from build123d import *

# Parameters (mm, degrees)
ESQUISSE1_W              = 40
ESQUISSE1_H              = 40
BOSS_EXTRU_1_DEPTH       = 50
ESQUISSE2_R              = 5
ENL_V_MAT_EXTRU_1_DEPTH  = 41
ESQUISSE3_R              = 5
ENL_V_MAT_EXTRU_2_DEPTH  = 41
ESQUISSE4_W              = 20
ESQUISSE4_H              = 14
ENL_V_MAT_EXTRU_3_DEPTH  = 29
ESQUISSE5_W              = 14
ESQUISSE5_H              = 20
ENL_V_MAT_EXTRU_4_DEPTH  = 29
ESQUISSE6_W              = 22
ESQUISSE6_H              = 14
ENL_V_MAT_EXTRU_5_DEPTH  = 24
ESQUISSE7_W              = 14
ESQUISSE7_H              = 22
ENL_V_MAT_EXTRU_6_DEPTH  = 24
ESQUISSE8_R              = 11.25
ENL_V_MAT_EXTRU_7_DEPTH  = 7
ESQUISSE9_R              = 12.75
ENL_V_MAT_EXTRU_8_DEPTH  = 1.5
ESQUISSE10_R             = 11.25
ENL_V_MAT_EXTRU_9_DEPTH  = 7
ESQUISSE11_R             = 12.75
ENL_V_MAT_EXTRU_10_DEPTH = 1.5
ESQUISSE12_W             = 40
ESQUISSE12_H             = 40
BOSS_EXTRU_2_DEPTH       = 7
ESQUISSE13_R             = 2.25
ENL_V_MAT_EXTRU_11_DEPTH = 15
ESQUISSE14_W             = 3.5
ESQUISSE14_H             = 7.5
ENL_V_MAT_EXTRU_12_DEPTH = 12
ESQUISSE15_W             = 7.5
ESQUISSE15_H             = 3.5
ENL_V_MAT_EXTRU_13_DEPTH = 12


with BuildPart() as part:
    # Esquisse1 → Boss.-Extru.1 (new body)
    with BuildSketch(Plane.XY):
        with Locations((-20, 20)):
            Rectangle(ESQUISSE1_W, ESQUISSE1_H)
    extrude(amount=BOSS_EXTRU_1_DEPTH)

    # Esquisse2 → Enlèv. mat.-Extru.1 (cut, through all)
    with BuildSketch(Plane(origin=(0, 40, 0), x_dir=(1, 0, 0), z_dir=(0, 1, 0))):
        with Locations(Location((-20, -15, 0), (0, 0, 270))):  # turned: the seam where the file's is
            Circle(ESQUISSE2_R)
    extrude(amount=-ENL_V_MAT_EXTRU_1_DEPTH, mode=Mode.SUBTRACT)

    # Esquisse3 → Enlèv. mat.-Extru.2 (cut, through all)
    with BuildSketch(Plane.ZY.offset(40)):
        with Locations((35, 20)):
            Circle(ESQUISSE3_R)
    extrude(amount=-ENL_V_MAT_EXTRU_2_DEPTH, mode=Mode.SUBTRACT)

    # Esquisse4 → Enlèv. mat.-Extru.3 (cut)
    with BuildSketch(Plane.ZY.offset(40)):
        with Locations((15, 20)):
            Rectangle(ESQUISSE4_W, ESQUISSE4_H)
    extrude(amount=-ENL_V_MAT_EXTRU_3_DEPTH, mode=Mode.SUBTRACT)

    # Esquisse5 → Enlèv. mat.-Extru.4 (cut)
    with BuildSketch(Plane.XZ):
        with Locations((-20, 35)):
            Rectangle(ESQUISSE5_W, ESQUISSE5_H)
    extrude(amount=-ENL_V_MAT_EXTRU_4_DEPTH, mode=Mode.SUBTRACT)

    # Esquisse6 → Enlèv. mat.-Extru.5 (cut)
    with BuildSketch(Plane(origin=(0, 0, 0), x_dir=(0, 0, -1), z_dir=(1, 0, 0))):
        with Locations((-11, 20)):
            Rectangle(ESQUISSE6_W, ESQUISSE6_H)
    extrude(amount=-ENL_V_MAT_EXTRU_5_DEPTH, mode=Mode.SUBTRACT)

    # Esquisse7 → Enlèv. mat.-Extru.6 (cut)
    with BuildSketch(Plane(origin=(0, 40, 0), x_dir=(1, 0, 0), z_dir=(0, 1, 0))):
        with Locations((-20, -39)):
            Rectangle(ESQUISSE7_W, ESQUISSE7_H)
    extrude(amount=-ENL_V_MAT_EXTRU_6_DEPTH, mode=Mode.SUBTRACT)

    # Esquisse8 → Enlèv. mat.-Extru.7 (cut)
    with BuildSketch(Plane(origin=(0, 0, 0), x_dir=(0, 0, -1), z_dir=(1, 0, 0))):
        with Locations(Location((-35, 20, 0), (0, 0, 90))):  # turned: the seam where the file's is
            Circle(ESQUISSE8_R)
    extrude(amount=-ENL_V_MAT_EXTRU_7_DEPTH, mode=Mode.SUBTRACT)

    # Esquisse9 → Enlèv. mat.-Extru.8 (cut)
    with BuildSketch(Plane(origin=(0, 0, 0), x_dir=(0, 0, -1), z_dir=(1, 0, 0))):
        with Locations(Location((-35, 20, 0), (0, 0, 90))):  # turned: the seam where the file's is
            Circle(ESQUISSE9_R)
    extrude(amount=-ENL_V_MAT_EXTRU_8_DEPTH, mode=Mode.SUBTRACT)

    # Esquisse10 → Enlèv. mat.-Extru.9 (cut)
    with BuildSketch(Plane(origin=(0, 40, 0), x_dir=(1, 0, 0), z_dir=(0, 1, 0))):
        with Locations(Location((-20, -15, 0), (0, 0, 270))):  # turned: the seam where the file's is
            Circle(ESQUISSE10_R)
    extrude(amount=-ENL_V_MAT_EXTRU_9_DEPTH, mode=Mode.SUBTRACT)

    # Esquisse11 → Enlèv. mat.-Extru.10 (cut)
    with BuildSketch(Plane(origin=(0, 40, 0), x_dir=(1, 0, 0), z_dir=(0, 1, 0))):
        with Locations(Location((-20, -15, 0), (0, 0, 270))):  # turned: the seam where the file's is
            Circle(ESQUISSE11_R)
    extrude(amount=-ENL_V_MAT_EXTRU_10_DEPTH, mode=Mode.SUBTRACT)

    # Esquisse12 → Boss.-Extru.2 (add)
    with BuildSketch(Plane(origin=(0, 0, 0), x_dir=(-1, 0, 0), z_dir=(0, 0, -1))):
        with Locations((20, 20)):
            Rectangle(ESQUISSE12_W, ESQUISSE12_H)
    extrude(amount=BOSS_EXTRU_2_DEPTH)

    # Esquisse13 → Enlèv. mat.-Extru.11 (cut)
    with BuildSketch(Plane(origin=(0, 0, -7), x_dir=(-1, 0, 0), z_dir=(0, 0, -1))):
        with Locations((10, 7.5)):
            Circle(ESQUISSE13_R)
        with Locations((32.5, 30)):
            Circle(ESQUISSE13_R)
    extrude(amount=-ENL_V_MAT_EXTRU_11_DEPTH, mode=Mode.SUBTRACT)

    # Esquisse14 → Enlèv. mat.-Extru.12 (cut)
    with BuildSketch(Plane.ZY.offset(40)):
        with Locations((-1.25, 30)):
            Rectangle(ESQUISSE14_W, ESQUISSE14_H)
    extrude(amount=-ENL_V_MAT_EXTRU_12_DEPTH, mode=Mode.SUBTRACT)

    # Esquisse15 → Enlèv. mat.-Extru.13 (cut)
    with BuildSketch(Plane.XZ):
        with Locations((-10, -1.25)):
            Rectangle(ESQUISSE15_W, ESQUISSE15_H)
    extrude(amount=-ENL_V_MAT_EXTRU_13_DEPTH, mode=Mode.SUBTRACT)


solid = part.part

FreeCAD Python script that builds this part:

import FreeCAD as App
import Part
import Sketcher

V = App.Vector

doc = App.newDocument("Part")
body = doc.addObject("PartDesign::Body", "Body")

sketch1 = doc.addObject("Sketcher::SketchObject", "Sketch")
body.addObject(sketch1)
sketch1.AttachmentSupport = (doc.XY_Plane, [""])
sketch1.MapMode = "FlatFace"
sketch1.addGeometry(Part.LineSegment(V(-40, 40, 0), V(-40, 0, 0)), False)
sketch1.addGeometry(Part.LineSegment(V(-40, 0, 0), V(0, 0, 0)), False)
sketch1.addGeometry(Part.LineSegment(V(0, 0, 0), V(0, 40, 0)), False)
sketch1.addGeometry(Part.LineSegment(V(0, 40, 0), V(-40, 40, 0)), False)
sketch1.addConstraint(Sketcher.Constraint("Coincident", 0, 2, 1, 1))
sketch1.addConstraint(Sketcher.Constraint("Coincident", 1, 2, 2, 1))
sketch1.addConstraint(Sketcher.Constraint("Coincident", 2, 2, 3, 1))
sketch1.addConstraint(Sketcher.Constraint("Coincident", 3, 2, 0, 1))
sketch1.addConstraint(Sketcher.Constraint("Vertical", 0))
sketch1.addConstraint(Sketcher.Constraint("Horizontal", 1))
sketch1.addConstraint(Sketcher.Constraint("Vertical", 2))
sketch1.addConstraint(Sketcher.Constraint("Horizontal", 3))
sketch1.addConstraint(Sketcher.Constraint("Coincident", 1, 2, -1, 1))
sketch1.addConstraint(Sketcher.Constraint("Equal", 3, 0))
sketch1.addConstraint(Sketcher.Constraint("DistanceX", 1, 1, 1, 2, 40.0))
pad1 = doc.addObject("PartDesign::Pad", "Pad")
body.addObject(pad1)
pad1.Profile = sketch1
pad1.Length = 50

sketch2 = doc.addObject("Sketcher::SketchObject", "Sketch001")
body.addObject(sketch2)
sketch2.AttachmentSupport = (doc.XZ_Plane, [""])
sketch2.MapMode = "FlatFace"
sketch2.AttachmentOffset = App.Placement(V(0, 0, -40), App.Rotation())
sketch2.addGeometry(Part.Circle(V(-20, 15, 0), V(0, 0, 1), 5), False)
sketch2.addConstraint(Sketcher.Constraint("Diameter", 0, 10.0))
sketch2.addConstraint(Sketcher.Constraint("DistanceX", 0, 3, -1, 1, 20.0))
sketch2.addConstraint(Sketcher.Constraint("DistanceY", -1, 1, 0, 3, 15.0))
pocket1 = doc.addObject("PartDesign::Pocket", "Pocket")
body.addObject(pocket1)
pocket1.Profile = sketch2
pocket1.Type = "ThroughAll"
pocket1.Reversed = True

sketch3 = doc.addObject("Sketcher::SketchObject", "Sketch002")
body.addObject(sketch3)
sketch3.AttachmentSupport = (doc.YZ_Plane, [""])
sketch3.MapMode = "FlatFace"
sketch3.AttachmentOffset = App.Placement(V(0, 0, -40), App.Rotation())
sketch3.addGeometry(Part.Circle(V(20, 35, 0), V(0, 0, 1), 5), False)
sketch3.addConstraint(Sketcher.Constraint("Diameter", 0, 10.0))
sketch3.addConstraint(Sketcher.Constraint("DistanceX", -1, 1, 0, 3, 20.0))
sketch3.addConstraint(Sketcher.Constraint("DistanceY", -1, 1, 0, 3, 35.0))
pocket2 = doc.addObject("PartDesign::Pocket", "Pocket001")
body.addObject(pocket2)
pocket2.Profile = sketch3
pocket2.Type = "ThroughAll"
pocket2.Reversed = True

sketch4 = doc.addObject("Sketcher::SketchObject", "Sketch003")
body.addObject(sketch4)
sketch4.AttachmentSupport = (doc.YZ_Plane, [""])
sketch4.MapMode = "FlatFace"
sketch4.AttachmentOffset = App.Placement(V(0, 0, -40), App.Rotation())
sketch4.addGeometry(Part.LineSegment(V(27, 5, 0), V(13, 5, 0)), False)
sketch4.addGeometry(Part.LineSegment(V(13, 5, 0), V(13, 25, 0)), False)
sketch4.addGeometry(Part.LineSegment(V(13, 25, 0), V(27, 25, 0)), False)
sketch4.addGeometry(Part.LineSegment(V(27, 25, 0), V(27, 5, 0)), False)
sketch4.addConstraint(Sketcher.Constraint("Coincident", 0, 2, 1, 1))
sketch4.addConstraint(Sketcher.Constraint("Coincident", 1, 2, 2, 1))
sketch4.addConstraint(Sketcher.Constraint("Coincident", 2, 2, 3, 1))
sketch4.addConstraint(Sketcher.Constraint("Coincident", 3, 2, 0, 1))
sketch4.addConstraint(Sketcher.Constraint("Horizontal", 0))
sketch4.addConstraint(Sketcher.Constraint("Vertical", 1))
sketch4.addConstraint(Sketcher.Constraint("Horizontal", 2))
sketch4.addConstraint(Sketcher.Constraint("Vertical", 3))
sketch4.addConstraint(Sketcher.Constraint("DistanceX", 0, 2, 0, 1, 14.0))
sketch4.addConstraint(Sketcher.Constraint("DistanceY", 1, 1, 1, 2, 20.0))
sketch4.addConstraint(Sketcher.Constraint("DistanceX", -1, 1, 0, 2, 13.0))
sketch4.addConstraint(Sketcher.Constraint("DistanceY", -1, 1, 0, 2, 5.0))
pocket3 = doc.addObject("PartDesign::Pocket", "Pocket002")
body.addObject(pocket3)
pocket3.Profile = sketch4
pocket3.Length = 29
pocket3.Reversed = True

sketch5 = doc.addObject("Sketcher::SketchObject", "Sketch004")
body.addObject(sketch5)
sketch5.AttachmentSupport = (doc.XZ_Plane, [""])
sketch5.MapMode = "FlatFace"
sketch5.addGeometry(Part.LineSegment(V(-27, 45, 0), V(-27, 25, 0)), False)
sketch5.addGeometry(Part.LineSegment(V(-27, 25, 0), V(-13, 25, 0)), False)
sketch5.addGeometry(Part.LineSegment(V(-13, 25, 0), V(-13, 45, 0)), False)
sketch5.addGeometry(Part.LineSegment(V(-13, 45, 0), V(-27, 45, 0)), False)
sketch5.addConstraint(Sketcher.Constraint("Coincident", 0, 2, 1, 1))
sketch5.addConstraint(Sketcher.Constraint("Coincident", 1, 2, 2, 1))
sketch5.addConstraint(Sketcher.Constraint("Coincident", 2, 2, 3, 1))
sketch5.addConstraint(Sketcher.Constraint("Coincident", 3, 2, 0, 1))
sketch5.addConstraint(Sketcher.Constraint("Vertical", 0))
sketch5.addConstraint(Sketcher.Constraint("Horizontal", 1))
sketch5.addConstraint(Sketcher.Constraint("Vertical", 2))
sketch5.addConstraint(Sketcher.Constraint("Horizontal", 3))
sketch5.addConstraint(Sketcher.Constraint("DistanceX", 1, 1, 1, 2, 14.0))
sketch5.addConstraint(Sketcher.Constraint("DistanceY", 0, 2, 0, 1, 20.0))
sketch5.addConstraint(Sketcher.Constraint("DistanceX", 0, 2, -1, 1, 27.0))
sketch5.addConstraint(Sketcher.Constraint("DistanceY", -1, 1, 0, 2, 25.0))
pocket4 = doc.addObject("PartDesign::Pocket", "Pocket003")
body.addObject(pocket4)
pocket4.Profile = sketch5
pocket4.Length = 29

sketch6 = doc.addObject("Sketcher::SketchObject", "Sketch005")
body.addObject(sketch6)
sketch6.AttachmentSupport = (doc.YZ_Plane, [""])
sketch6.MapMode = "FlatFace"
sketch6.addGeometry(Part.LineSegment(V(27, 22, 0), V(13, 22, 0)), False)
sketch6.addGeometry(Part.LineSegment(V(13, 22, 0), V(13, 0, 0)), False)
sketch6.addGeometry(Part.LineSegment(V(13, 0, 0), V(27, 0, 0)), False)
sketch6.addGeometry(Part.LineSegment(V(27, 0, 0), V(27, 22, 0)), False)
sketch6.addConstraint(Sketcher.Constraint("Coincident", 0, 2, 1, 1))
sketch6.addConstraint(Sketcher.Constraint("Coincident", 1, 2, 2, 1))
sketch6.addConstraint(Sketcher.Constraint("Coincident", 2, 2, 3, 1))
sketch6.addConstraint(Sketcher.Constraint("Coincident", 3, 2, 0, 1))
sketch6.addConstraint(Sketcher.Constraint("Horizontal", 0))
sketch6.addConstraint(Sketcher.Constraint("Vertical", 1))
sketch6.addConstraint(Sketcher.Constraint("Horizontal", 2))
sketch6.addConstraint(Sketcher.Constraint("Vertical", 3))
sketch6.addConstraint(Sketcher.Constraint("PointOnObject", 1, 2, -1))
sketch6.addConstraint(Sketcher.Constraint("DistanceX", 0, 2, 0, 1, 14.0))
sketch6.addConstraint(Sketcher.Constraint("DistanceY", 1, 2, 1, 1, 22.0))
sketch6.addConstraint(Sketcher.Constraint("DistanceX", -1, 1, 0, 2, 13.0))
pocket5 = doc.addObject("PartDesign::Pocket", "Pocket004")
body.addObject(pocket5)
pocket5.Profile = sketch6
pocket5.Length = 24

sketch7 = doc.addObject("Sketcher::SketchObject", "Sketch006")
body.addObject(sketch7)
sketch7.AttachmentSupport = (doc.XZ_Plane, [""])
sketch7.MapMode = "FlatFace"
sketch7.AttachmentOffset = App.Placement(V(0, 0, -40), App.Rotation())
sketch7.addGeometry(Part.LineSegment(V(-27, 28, 0), V(-27, 50, 0)), False)
sketch7.addGeometry(Part.LineSegment(V(-27, 50, 0), V(-13, 50, 0)), False)
sketch7.addGeometry(Part.LineSegment(V(-13, 50, 0), V(-13, 28, 0)), False)
sketch7.addGeometry(Part.LineSegment(V(-13, 28, 0), V(-27, 28, 0)), False)
sketch7.addConstraint(Sketcher.Constraint("Coincident", 0, 2, 1, 1))
sketch7.addConstraint(Sketcher.Constraint("Coincident", 1, 2, 2, 1))
sketch7.addConstraint(Sketcher.Constraint("Coincident", 2, 2, 3, 1))
sketch7.addConstraint(Sketcher.Constraint("Coincident", 3, 2, 0, 1))
sketch7.addConstraint(Sketcher.Constraint("Vertical", 0))
sketch7.addConstraint(Sketcher.Constraint("Horizontal", 1))
sketch7.addConstraint(Sketcher.Constraint("Vertical", 2))
sketch7.addConstraint(Sketcher.Constraint("Horizontal", 3))
sketch7.addConstraint(Sketcher.Constraint("DistanceX", 1, 1, 1, 2, 14.0))
sketch7.addConstraint(Sketcher.Constraint("DistanceY", 0, 1, 0, 2, 22.0))
sketch7.addConstraint(Sketcher.Constraint("DistanceX", 0, 2, -1, 1, 27.0))
sketch7.addConstraint(Sketcher.Constraint("DistanceY", -1, 1, 0, 2, 50.0))
pocket6 = doc.addObject("PartDesign::Pocket", "Pocket005")
body.addObject(pocket6)
pocket6.Profile = sketch7
pocket6.Length = 24
pocket6.Reversed = True

sketch8 = doc.addObject("Sketcher::SketchObject", "Sketch007")
body.addObject(sketch8)
sketch8.AttachmentSupport = (doc.YZ_Plane, [""])
sketch8.MapMode = "FlatFace"
sketch8.addGeometry(Part.Circle(V(20, 35, 0), V(0, 0, 1), 11.25), False)
sketch8.addConstraint(Sketcher.Constraint("Diameter", 0, 22.5))
sketch8.addConstraint(Sketcher.Constraint("DistanceX", -1, 1, 0, 3, 20.0))
sketch8.addConstraint(Sketcher.Constraint("DistanceY", -1, 1, 0, 3, 35.0))
pocket7 = doc.addObject("PartDesign::Pocket", "Pocket006")
body.addObject(pocket7)
pocket7.Profile = sketch8
pocket7.Length = 7

sketch9 = doc.addObject("Sketcher::SketchObject", "Sketch008")
body.addObject(sketch9)
sketch9.AttachmentSupport = (doc.YZ_Plane, [""])
sketch9.MapMode = "FlatFace"
sketch9.addGeometry(Part.Circle(V(20, 35, 0), V(0, 0, 1), 12.75), False)
sketch9.addConstraint(Sketcher.Constraint("Diameter", 0, 25.5))
sketch9.addConstraint(Sketcher.Constraint("DistanceX", -1, 1, 0, 3, 20.0))
sketch9.addConstraint(Sketcher.Constraint("DistanceY", -1, 1, 0, 3, 35.0))
pocket8 = doc.addObject("PartDesign::Pocket", "Pocket007")
body.addObject(pocket8)
pocket8.Profile = sketch9
pocket8.Length = 1.5

sketch10 = doc.addObject("Sketcher::SketchObject", "Sketch009")
body.addObject(sketch10)
sketch10.AttachmentSupport = (doc.XZ_Plane, [""])
sketch10.MapMode = "FlatFace"
sketch10.AttachmentOffset = App.Placement(V(0, 0, -40), App.Rotation())
sketch10.addGeometry(Part.Circle(V(-20, 15, 0), V(0, 0, 1), 11.25), False)
sketch10.addConstraint(Sketcher.Constraint("Diameter", 0, 22.5))
sketch10.addConstraint(Sketcher.Constraint("DistanceX", 0, 3, -1, 1, 20.0))
sketch10.addConstraint(Sketcher.Constraint("DistanceY", -1, 1, 0, 3, 15.0))
pocket9 = doc.addObject("PartDesign::Pocket", "Pocket008")
body.addObject(pocket9)
pocket9.Profile = sketch10
pocket9.Length = 7
pocket9.Reversed = True

sketch11 = doc.addObject("Sketcher::SketchObject", "Sketch010")
body.addObject(sketch11)
sketch11.AttachmentSupport = (doc.XZ_Plane, [""])
sketch11.MapMode = "FlatFace"
sketch11.AttachmentOffset = App.Placement(V(0, 0, -40), App.Rotation())
sketch11.addGeometry(Part.Circle(V(-20, 15, 0), V(0, 0, 1), 12.75), False)
sketch11.addConstraint(Sketcher.Constraint("Diameter", 0, 25.5))
sketch11.addConstraint(Sketcher.Constraint("DistanceX", 0, 3, -1, 1, 20.0))
sketch11.addConstraint(Sketcher.Constraint("DistanceY", -1, 1, 0, 3, 15.0))
pocket10 = doc.addObject("PartDesign::Pocket", "Pocket009")
body.addObject(pocket10)
pocket10.Profile = sketch11
pocket10.Length = 1.5
pocket10.Reversed = True

sketch12 = doc.addObject("Sketcher::SketchObject", "Sketch011")
body.addObject(sketch12)
sketch12.AttachmentSupport = (doc.XY_Plane, [""])
sketch12.MapMode = "FlatFace"
sketch12.addGeometry(Part.LineSegment(V(0, 40, 0), V(0, 0, 0)), False)
sketch12.addGeometry(Part.LineSegment(V(0, 0, 0), V(-40, 0, 0)), False)
sketch12.addGeometry(Part.LineSegment(V(-40, 0, 0), V(-40, 40, 0)), False)
sketch12.addGeometry(Part.LineSegment(V(-40, 40, 0), V(0, 40, 0)), False)
sketch12.addConstraint(Sketcher.Constraint("Coincident", 0, 2, 1, 1))
sketch12.addConstraint(Sketcher.Constraint("Coincident", 1, 2, 2, 1))
sketch12.addConstraint(Sketcher.Constraint("Coincident", 2, 2, 3, 1))
sketch12.addConstraint(Sketcher.Constraint("Coincident", 3, 2, 0, 1))
sketch12.addConstraint(Sketcher.Constraint("Vertical", 0))
sketch12.addConstraint(Sketcher.Constraint("Horizontal", 1))
sketch12.addConstraint(Sketcher.Constraint("Vertical", 2))
sketch12.addConstraint(Sketcher.Constraint("Horizontal", 3))
sketch12.addConstraint(Sketcher.Constraint("Coincident", 0, 2, -1, 1))
sketch12.addConstraint(Sketcher.Constraint("Equal", 3, 0))
sketch12.addConstraint(Sketcher.Constraint("DistanceX", 1, 2, 1, 1, 40.0))
pad2 = doc.addObject("PartDesign::Pad", "Pad001")
body.addObject(pad2)
pad2.Profile = sketch12
pad2.Length = 7
pad2.Reversed = True

sketch13 = doc.addObject("Sketcher::SketchObject", "Sketch012")
body.addObject(sketch13)
sketch13.AttachmentSupport = (doc.XY_Plane, [""])
sketch13.MapMode = "FlatFace"
sketch13.AttachmentOffset = App.Placement(V(0, 0, -7), App.Rotation())
sketch13.addGeometry(Part.Circle(V(-10, 7.5, 0), V(0, 0, 1), 2.25), False)
sketch13.addGeometry(Part.Circle(V(-32.5, 30, 0), V(0, 0, 1), 2.25), False)
sketch13.addConstraint(Sketcher.Constraint("Equal", 0, 1))
sketch13.addConstraint(Sketcher.Constraint("Diameter", 0, 4.5))
sketch13.addConstraint(Sketcher.Constraint("DistanceX", 0, 3, -1, 1, 10.0))
sketch13.addConstraint(Sketcher.Constraint("DistanceY", -1, 1, 1, 3, 30.0))
sketch13.addConstraint(Sketcher.Constraint("DistanceY", -1, 1, 0, 3, 7.5))
sketch13.addConstraint(Sketcher.Constraint("DistanceX", 1, 3, -1, 1, 32.5))
pocket11 = doc.addObject("PartDesign::Pocket", "Pocket010")
body.addObject(pocket11)
pocket11.Profile = sketch13
pocket11.Length = 15
pocket11.Reversed = True

sketch14 = doc.addObject("Sketcher::SketchObject", "Sketch013")
body.addObject(sketch14)
sketch14.AttachmentSupport = (doc.YZ_Plane, [""])
sketch14.MapMode = "FlatFace"
sketch14.AttachmentOffset = App.Placement(V(0, 0, -40), App.Rotation())
sketch14.addGeometry(Part.LineSegment(V(33.75, -3, 0), V(26.25, -3, 0)), False)
sketch14.addGeometry(Part.LineSegment(V(26.25, -3, 0), V(26.25, 0.5, 0)), False)
sketch14.addGeometry(Part.LineSegment(V(26.25, 0.5, 0), V(33.75, 0.5, 0)), False)
sketch14.addGeometry(Part.LineSegment(V(33.75, 0.5, 0), V(33.75, -3, 0)), False)
sketch14.addConstraint(Sketcher.Constraint("Coincident", 0, 2, 1, 1))
sketch14.addConstraint(Sketcher.Constraint("Coincident", 1, 2, 2, 1))
sketch14.addConstraint(Sketcher.Constraint("Coincident", 2, 2, 3, 1))
sketch14.addConstraint(Sketcher.Constraint("Coincident", 3, 2, 0, 1))
sketch14.addConstraint(Sketcher.Constraint("Horizontal", 0))
sketch14.addConstraint(Sketcher.Constraint("Vertical", 1))
sketch14.addConstraint(Sketcher.Constraint("Horizontal", 2))
sketch14.addConstraint(Sketcher.Constraint("Vertical", 3))
sketch14.addConstraint(Sketcher.Constraint("DistanceX", 0, 2, 0, 1, 7.5))
sketch14.addConstraint(Sketcher.Constraint("DistanceY", 1, 1, 1, 2, 3.5))
sketch14.addConstraint(Sketcher.Constraint("DistanceY", 0, 2, -1, 1, 3.0))
sketch14.addConstraint(Sketcher.Constraint("DistanceX", -1, 1, 0, 2, 26.25))
pocket12 = doc.addObject("PartDesign::Pocket", "Pocket011")
body.addObject(pocket12)
pocket12.Profile = sketch14
pocket12.Length = 12
pocket12.Reversed = True

sketch15 = doc.addObject("Sketcher::SketchObject", "Sketch014")
body.addObject(sketch15)
sketch15.AttachmentSupport = (doc.XZ_Plane, [""])
sketch15.MapMode = "FlatFace"
sketch15.addGeometry(Part.LineSegment(V(-13.75, 0.5, 0), V(-13.75, -3, 0)), False)
sketch15.addGeometry(Part.LineSegment(V(-13.75, -3, 0), V(-6.25, -3, 0)), False)
sketch15.addGeometry(Part.LineSegment(V(-6.25, -3, 0), V(-6.25, 0.5, 0)), False)
sketch15.addGeometry(Part.LineSegment(V(-6.25, 0.5, 0), V(-13.75, 0.5, 0)), False)
sketch15.addConstraint(Sketcher.Constraint("Coincident", 0, 2, 1, 1))
sketch15.addConstraint(Sketcher.Constraint("Coincident", 1, 2, 2, 1))
sketch15.addConstraint(Sketcher.Constraint("Coincident", 2, 2, 3, 1))
sketch15.addConstraint(Sketcher.Constraint("Coincident", 3, 2, 0, 1))
sketch15.addConstraint(Sketcher.Constraint("Vertical", 0))
sketch15.addConstraint(Sketcher.Constraint("Horizontal", 1))
sketch15.addConstraint(Sketcher.Constraint("Vertical", 2))
sketch15.addConstraint(Sketcher.Constraint("Horizontal", 3))
sketch15.addConstraint(Sketcher.Constraint("DistanceX", 1, 1, 1, 2, 7.5))
sketch15.addConstraint(Sketcher.Constraint("DistanceY", 0, 2, 0, 1, 3.5))
sketch15.addConstraint(Sketcher.Constraint("DistanceY", 0, 2, -1, 1, 3.0))
sketch15.addConstraint(Sketcher.Constraint("DistanceX", 0, 2, -1, 1, 13.75))
pocket13 = doc.addObject("PartDesign::Pocket", "Pocket012")
body.addObject(pocket13)
pocket13.Profile = sketch15
pocket13.Length = 12

doc.recompute()
